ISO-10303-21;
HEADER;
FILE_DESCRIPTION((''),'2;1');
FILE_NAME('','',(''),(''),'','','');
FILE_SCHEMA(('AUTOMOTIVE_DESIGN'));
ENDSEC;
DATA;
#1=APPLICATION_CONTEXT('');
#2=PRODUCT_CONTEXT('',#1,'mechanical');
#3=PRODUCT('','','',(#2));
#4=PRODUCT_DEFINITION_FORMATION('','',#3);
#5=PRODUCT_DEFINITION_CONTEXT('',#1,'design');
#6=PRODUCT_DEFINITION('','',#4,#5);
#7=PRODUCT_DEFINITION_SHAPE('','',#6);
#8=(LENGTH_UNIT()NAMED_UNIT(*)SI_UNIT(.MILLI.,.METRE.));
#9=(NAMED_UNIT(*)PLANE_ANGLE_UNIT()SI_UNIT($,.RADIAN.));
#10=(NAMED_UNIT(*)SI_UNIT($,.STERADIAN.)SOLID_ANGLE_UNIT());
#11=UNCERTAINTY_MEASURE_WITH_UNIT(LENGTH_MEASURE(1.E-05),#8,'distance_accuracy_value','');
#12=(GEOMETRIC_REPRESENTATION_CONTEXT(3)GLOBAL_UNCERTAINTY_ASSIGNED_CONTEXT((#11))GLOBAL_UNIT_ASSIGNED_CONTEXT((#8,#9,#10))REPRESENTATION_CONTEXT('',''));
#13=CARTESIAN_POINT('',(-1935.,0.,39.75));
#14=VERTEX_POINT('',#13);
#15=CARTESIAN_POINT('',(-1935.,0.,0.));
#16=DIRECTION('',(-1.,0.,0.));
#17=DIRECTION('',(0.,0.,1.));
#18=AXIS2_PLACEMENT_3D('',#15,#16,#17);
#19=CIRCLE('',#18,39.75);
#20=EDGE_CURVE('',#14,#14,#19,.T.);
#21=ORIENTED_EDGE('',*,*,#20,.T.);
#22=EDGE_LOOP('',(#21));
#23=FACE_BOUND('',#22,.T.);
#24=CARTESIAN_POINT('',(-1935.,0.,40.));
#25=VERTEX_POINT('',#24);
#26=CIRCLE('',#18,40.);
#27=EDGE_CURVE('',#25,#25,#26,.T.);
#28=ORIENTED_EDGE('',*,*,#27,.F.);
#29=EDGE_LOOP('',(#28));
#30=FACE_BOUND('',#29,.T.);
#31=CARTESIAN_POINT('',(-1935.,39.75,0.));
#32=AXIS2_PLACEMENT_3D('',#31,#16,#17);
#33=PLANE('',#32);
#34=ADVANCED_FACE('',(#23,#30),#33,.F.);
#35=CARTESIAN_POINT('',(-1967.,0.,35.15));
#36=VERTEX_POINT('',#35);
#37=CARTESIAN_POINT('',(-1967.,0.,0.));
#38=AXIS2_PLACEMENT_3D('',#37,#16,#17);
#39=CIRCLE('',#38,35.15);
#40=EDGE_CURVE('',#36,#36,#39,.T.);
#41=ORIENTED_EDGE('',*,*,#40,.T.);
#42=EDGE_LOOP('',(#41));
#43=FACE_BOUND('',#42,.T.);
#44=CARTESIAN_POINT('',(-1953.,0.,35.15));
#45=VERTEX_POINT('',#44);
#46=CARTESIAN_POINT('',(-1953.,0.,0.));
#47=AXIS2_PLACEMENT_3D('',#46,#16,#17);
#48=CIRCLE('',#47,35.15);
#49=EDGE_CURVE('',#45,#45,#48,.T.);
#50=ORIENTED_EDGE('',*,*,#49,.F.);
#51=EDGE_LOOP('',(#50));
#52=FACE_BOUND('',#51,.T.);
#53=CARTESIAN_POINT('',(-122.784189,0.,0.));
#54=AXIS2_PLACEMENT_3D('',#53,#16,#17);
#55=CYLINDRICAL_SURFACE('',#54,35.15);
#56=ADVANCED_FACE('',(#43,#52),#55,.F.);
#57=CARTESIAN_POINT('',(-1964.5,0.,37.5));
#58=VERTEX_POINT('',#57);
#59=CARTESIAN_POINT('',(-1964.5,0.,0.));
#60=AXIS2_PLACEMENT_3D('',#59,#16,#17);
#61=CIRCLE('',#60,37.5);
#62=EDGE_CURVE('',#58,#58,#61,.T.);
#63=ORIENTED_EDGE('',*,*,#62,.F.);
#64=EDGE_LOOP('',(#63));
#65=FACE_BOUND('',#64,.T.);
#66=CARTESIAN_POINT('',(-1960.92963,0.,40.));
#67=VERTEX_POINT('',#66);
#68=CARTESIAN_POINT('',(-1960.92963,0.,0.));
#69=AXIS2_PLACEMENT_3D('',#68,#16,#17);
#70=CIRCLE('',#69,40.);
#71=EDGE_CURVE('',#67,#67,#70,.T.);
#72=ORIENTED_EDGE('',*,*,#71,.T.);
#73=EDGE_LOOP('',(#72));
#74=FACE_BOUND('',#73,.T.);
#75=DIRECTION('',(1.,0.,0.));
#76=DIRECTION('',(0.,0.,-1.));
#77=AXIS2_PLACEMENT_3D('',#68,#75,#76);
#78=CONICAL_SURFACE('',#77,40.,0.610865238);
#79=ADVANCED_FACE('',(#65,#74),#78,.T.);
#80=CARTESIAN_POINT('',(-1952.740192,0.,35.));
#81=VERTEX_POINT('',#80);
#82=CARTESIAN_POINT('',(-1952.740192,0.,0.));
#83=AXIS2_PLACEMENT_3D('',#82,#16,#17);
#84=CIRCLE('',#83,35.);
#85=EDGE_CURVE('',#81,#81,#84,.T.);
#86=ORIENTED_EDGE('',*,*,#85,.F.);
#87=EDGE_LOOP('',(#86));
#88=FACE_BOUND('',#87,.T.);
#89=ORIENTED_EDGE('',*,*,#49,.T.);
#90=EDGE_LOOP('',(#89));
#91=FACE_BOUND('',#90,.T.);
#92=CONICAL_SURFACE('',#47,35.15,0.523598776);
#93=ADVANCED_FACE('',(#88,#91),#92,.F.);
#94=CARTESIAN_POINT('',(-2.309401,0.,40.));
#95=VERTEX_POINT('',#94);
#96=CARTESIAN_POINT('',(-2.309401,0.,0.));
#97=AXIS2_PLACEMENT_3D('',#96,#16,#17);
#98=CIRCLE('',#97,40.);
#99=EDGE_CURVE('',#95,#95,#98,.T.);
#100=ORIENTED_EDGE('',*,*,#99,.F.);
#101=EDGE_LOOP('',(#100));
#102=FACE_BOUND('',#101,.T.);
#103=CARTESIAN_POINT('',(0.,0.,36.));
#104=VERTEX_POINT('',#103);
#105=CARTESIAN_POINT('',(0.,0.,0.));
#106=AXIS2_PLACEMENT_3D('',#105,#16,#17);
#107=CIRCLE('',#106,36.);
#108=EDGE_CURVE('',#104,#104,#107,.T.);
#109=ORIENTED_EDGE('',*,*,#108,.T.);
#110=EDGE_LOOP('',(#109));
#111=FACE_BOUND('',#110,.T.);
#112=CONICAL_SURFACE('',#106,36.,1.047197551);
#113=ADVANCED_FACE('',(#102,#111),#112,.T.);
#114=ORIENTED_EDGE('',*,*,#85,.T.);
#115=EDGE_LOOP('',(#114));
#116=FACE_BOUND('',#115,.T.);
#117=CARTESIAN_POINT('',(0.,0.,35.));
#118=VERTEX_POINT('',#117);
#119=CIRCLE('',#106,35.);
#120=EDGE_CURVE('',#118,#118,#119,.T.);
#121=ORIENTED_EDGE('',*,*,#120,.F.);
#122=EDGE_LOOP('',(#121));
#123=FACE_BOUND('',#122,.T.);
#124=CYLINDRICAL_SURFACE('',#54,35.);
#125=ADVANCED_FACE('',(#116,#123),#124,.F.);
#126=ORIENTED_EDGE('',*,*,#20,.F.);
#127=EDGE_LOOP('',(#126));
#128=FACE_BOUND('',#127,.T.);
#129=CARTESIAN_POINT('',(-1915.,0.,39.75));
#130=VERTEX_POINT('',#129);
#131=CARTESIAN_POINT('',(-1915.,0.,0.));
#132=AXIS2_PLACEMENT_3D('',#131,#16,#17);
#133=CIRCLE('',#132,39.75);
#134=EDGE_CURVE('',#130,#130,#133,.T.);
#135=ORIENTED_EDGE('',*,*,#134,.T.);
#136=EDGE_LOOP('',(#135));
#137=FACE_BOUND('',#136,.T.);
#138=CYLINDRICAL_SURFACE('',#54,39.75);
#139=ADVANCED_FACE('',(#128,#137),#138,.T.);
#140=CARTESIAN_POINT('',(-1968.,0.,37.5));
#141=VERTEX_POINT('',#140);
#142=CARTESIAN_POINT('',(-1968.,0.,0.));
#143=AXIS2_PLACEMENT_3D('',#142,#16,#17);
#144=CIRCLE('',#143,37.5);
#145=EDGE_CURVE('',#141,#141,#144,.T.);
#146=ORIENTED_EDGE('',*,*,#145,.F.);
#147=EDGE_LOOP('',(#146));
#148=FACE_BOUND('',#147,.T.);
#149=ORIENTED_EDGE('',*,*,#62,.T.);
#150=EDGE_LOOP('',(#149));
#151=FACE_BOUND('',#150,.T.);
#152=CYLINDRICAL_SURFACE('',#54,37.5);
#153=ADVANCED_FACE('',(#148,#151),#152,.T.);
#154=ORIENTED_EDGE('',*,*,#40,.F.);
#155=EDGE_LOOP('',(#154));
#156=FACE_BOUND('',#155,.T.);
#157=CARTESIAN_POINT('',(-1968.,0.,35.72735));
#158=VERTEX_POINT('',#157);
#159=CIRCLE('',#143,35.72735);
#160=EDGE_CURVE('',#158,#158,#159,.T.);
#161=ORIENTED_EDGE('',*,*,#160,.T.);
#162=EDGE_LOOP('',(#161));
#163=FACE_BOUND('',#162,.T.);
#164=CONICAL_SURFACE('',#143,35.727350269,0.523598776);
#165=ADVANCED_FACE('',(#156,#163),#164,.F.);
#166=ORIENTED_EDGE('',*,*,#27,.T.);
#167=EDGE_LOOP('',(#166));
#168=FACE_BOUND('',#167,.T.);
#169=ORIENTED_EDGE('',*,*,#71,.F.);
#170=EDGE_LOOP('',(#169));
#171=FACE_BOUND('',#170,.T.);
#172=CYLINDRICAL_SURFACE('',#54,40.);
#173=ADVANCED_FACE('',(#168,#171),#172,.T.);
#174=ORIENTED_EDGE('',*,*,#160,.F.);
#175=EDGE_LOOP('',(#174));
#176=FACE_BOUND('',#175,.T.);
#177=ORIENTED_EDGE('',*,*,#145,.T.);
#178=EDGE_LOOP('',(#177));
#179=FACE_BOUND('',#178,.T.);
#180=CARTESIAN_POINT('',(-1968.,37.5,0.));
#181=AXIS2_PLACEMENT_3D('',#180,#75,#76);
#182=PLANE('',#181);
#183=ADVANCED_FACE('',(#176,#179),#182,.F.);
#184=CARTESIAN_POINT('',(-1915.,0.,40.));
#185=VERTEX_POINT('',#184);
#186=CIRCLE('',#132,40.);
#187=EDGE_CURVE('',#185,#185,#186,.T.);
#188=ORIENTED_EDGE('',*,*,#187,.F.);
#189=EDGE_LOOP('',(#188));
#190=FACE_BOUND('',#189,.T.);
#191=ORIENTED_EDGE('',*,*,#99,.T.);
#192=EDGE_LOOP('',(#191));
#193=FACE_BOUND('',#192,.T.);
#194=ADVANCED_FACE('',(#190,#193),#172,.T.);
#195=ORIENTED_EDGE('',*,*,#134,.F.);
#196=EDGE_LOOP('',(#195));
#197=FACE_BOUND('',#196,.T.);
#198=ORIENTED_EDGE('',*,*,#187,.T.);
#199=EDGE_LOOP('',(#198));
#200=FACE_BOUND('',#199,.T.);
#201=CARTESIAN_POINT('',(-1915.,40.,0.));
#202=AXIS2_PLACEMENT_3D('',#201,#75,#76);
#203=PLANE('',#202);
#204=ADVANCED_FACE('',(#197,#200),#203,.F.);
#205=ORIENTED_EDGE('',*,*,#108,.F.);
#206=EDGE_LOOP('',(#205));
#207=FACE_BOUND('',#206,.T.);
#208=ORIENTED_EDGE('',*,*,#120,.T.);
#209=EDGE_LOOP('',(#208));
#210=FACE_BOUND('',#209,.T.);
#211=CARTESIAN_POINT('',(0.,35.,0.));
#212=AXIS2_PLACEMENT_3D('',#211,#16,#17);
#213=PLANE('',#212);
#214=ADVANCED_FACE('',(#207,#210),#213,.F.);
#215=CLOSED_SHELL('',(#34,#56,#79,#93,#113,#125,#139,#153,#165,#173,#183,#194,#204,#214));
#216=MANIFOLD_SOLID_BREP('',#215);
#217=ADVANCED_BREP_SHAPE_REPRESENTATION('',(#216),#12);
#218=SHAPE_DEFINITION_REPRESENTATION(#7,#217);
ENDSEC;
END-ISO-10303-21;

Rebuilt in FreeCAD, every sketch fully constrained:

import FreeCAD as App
import Part
import Sketcher
from FreeCAD import Vector
Q = App.Units.Quantity

doc = App.newDocument("Part")
body = doc.addObject("PartDesign::Body", "Body")

# Sketch on XY plane
sketch1 = body.newObject("Sketcher::SketchObject", "Sketch")
sketch1.AttachmentSupport = (doc.getObject("XY_Plane"), [""])
sketch1.MapMode = "FlatFace"
sketch1.addGeometry(Part.LineSegment(Vector(0, 35, 0), Vector(0, 36, 0)), False)
sketch1.addGeometry(Part.LineSegment(Vector(0, 36, 0), Vector(-2.31, 40, 0)), False)
sketch1.addGeometry(Part.LineSegment(Vector(-2.31, 40, 0), Vector(-1915, 40, 0)), False)
sketch1.addGeometry(Part.LineSegment(Vector(-1915, 40, 0), Vector(-1915, 39.75, 0)), False)
sketch1.addGeometry(Part.LineSegment(Vector(-1915, 39.75, 0), Vector(-1935, 39.75, 0)), False)
sketch1.addGeometry(Part.LineSegment(Vector(-1935, 39.75, 0), Vector(-1935, 40, 0)), False)
sketch1.addGeometry(Part.LineSegment(Vector(-1935, 40, 0), Vector(-1960.93, 40, 0)), False)
sketch1.addGeometry(Part.LineSegment(Vector(-1960.93, 40, 0), Vector(-1964.5, 37.5, 0)), False)
sketch1.addGeometry(Part.LineSegment(Vector(-1964.5, 37.5, 0), Vector(-1968, 37.5, 0)), False)
sketch1.addGeometry(Part.LineSegment(Vector(-1968, 37.5, 0), Vector(-1968, 35.73, 0)), False)
sketch1.addGeometry(Part.LineSegment(Vector(-1968, 35.73, 0), Vector(-1967, 35.15, 0)), False)
sketch1.addGeometry(Part.LineSegment(Vector(-1967, 35.15, 0), Vector(-1953, 35.15, 0)), False)
sketch1.addGeometry(Part.LineSegment(Vector(-1953, 35.15, 0), Vector(-1952.74, 35, 0)), False)
sketch1.addGeometry(Part.LineSegment(Vector(-1952.74, 35, 0), Vector(0, 35, 0)), False)
sketch1.addConstraint(Sketcher.Constraint("Coincident", 0, 2, 1, 1))
sketch1.addConstraint(Sketcher.Constraint("Coincident", 1, 2, 2, 1))
sketch1.addConstraint(Sketcher.Constraint("Coincident", 2, 2, 3, 1))
sketch1.addConstraint(Sketcher.Constraint("Coincident", 3, 2, 4, 1))
sketch1.addConstraint(Sketcher.Constraint("Coincident", 4, 2, 5, 1))
sketch1.addConstraint(Sketcher.Constraint("Coincident", 5, 2, 6, 1))
sketch1.addConstraint(Sketcher.Constraint("Coincident", 6, 2, 7, 1))
sketch1.addConstraint(Sketcher.Constraint("Coincident", 7, 2, 8, 1))
sketch1.addConstraint(Sketcher.Constraint("Coincident", 8, 2, 9, 1))
sketch1.addConstraint(Sketcher.Constraint("Coincident", 9, 2, 10, 1))
sketch1.addConstraint(Sketcher.Constraint("Coincident", 10, 2, 11, 1))
sketch1.addConstraint(Sketcher.Constraint("Coincident", 11, 2, 12, 1))
sketch1.addConstraint(Sketcher.Constraint("Coincident", 12, 2, 13, 1))
sketch1.addConstraint(Sketcher.Constraint("Coincident", 13, 2, 0, 1))
sketch1.addConstraint(Sketcher.Constraint("Vertical", 0))
sketch1.addConstraint(Sketcher.Constraint("Horizontal", 2))
sketch1.addConstraint(Sketcher.Constraint("Vertical", 3))
sketch1.addConstraint(Sketcher.Constraint("Horizontal", 4))
sketch1.addConstraint(Sketcher.Constraint("Vertical", 5))
sketch1.addConstraint(Sketcher.Constraint("Horizontal", 6))
sketch1.addConstraint(Sketcher.Constraint("Horizontal", 8))
sketch1.addConstraint(Sketcher.Constraint("Vertical", 9))
sketch1.addConstraint(Sketcher.Constraint("Horizontal", 11))
sketch1.addConstraint(Sketcher.Constraint("Horizontal", 13))
sketch1.addConstraint(Sketcher.Constraint("PointOnObject", 0, 2, -2))
sketch1.addConstraint(Sketcher.Constraint("Parallel", 10, 12))
sketch1.addConstraint(Sketcher.Constraint("Horizontal", 2, 2, 5, 2))
sketch1.addConstraint(Sketcher.Constraint("DistanceX", 4, 2, 4, 1, Q("20 mm")))
sketch1.addConstraint(Sketcher.Constraint("DistanceX", 11, 1, 11, 2, Q("14 mm")))
sketch1.addConstraint(Sketcher.Constraint("DistanceY", 0, 1, 0, 2, Q("1 mm")))
sketch1.addConstraint(Sketcher.Constraint("Angle", 1, Q("120 deg")))
sketch1.addConstraint(Sketcher.Constraint("Angle", 7, Q("-145 deg")))
sketch1.addConstraint(Sketcher.Constraint("Angle", 10, Q("-30 deg")))
sketch1.addConstraint(Sketcher.Constraint("DistanceX", 8, 2, 8, 1, Q("3.5 mm")))
sketch1.addConstraint(Sketcher.Constraint("DistanceY", -1, 1, 0, 2, Q("36 mm")))
sketch1.addConstraint(Sketcher.Constraint("DistanceY", -1, 1, 1, 2, Q("40 mm")))
sketch1.addConstraint(Sketcher.Constraint("DistanceX", 2, 2, -1, 1, Q("1915 mm")))
sketch1.addConstraint(Sketcher.Constraint("DistanceX", 8, 2, -1, 1, Q("1968 mm")))
sketch1.addConstraint(Sketcher.Constraint("DistanceX", 10, 2, -1, 1, Q("1967 mm")))
sketch1.addConstraint(Sketcher.Constraint("Distance", 12, Q("0.3 mm")))
sketch1.addConstraint(Sketcher.Constraint("DistanceY", 3, 2, 3, 1, Q("0.25 mm")))
sketch1.addConstraint(Sketcher.Constraint("DistanceY", -1, 1, 7, 2, Q("37.5 mm")))
revolution = body.newObject("PartDesign::Revolution", "Revolution")
revolution.Profile = sketch1
revolution.ReferenceAxis = (sketch1, ["H_Axis"])
revolution.Angle = 360

doc.recompute()
